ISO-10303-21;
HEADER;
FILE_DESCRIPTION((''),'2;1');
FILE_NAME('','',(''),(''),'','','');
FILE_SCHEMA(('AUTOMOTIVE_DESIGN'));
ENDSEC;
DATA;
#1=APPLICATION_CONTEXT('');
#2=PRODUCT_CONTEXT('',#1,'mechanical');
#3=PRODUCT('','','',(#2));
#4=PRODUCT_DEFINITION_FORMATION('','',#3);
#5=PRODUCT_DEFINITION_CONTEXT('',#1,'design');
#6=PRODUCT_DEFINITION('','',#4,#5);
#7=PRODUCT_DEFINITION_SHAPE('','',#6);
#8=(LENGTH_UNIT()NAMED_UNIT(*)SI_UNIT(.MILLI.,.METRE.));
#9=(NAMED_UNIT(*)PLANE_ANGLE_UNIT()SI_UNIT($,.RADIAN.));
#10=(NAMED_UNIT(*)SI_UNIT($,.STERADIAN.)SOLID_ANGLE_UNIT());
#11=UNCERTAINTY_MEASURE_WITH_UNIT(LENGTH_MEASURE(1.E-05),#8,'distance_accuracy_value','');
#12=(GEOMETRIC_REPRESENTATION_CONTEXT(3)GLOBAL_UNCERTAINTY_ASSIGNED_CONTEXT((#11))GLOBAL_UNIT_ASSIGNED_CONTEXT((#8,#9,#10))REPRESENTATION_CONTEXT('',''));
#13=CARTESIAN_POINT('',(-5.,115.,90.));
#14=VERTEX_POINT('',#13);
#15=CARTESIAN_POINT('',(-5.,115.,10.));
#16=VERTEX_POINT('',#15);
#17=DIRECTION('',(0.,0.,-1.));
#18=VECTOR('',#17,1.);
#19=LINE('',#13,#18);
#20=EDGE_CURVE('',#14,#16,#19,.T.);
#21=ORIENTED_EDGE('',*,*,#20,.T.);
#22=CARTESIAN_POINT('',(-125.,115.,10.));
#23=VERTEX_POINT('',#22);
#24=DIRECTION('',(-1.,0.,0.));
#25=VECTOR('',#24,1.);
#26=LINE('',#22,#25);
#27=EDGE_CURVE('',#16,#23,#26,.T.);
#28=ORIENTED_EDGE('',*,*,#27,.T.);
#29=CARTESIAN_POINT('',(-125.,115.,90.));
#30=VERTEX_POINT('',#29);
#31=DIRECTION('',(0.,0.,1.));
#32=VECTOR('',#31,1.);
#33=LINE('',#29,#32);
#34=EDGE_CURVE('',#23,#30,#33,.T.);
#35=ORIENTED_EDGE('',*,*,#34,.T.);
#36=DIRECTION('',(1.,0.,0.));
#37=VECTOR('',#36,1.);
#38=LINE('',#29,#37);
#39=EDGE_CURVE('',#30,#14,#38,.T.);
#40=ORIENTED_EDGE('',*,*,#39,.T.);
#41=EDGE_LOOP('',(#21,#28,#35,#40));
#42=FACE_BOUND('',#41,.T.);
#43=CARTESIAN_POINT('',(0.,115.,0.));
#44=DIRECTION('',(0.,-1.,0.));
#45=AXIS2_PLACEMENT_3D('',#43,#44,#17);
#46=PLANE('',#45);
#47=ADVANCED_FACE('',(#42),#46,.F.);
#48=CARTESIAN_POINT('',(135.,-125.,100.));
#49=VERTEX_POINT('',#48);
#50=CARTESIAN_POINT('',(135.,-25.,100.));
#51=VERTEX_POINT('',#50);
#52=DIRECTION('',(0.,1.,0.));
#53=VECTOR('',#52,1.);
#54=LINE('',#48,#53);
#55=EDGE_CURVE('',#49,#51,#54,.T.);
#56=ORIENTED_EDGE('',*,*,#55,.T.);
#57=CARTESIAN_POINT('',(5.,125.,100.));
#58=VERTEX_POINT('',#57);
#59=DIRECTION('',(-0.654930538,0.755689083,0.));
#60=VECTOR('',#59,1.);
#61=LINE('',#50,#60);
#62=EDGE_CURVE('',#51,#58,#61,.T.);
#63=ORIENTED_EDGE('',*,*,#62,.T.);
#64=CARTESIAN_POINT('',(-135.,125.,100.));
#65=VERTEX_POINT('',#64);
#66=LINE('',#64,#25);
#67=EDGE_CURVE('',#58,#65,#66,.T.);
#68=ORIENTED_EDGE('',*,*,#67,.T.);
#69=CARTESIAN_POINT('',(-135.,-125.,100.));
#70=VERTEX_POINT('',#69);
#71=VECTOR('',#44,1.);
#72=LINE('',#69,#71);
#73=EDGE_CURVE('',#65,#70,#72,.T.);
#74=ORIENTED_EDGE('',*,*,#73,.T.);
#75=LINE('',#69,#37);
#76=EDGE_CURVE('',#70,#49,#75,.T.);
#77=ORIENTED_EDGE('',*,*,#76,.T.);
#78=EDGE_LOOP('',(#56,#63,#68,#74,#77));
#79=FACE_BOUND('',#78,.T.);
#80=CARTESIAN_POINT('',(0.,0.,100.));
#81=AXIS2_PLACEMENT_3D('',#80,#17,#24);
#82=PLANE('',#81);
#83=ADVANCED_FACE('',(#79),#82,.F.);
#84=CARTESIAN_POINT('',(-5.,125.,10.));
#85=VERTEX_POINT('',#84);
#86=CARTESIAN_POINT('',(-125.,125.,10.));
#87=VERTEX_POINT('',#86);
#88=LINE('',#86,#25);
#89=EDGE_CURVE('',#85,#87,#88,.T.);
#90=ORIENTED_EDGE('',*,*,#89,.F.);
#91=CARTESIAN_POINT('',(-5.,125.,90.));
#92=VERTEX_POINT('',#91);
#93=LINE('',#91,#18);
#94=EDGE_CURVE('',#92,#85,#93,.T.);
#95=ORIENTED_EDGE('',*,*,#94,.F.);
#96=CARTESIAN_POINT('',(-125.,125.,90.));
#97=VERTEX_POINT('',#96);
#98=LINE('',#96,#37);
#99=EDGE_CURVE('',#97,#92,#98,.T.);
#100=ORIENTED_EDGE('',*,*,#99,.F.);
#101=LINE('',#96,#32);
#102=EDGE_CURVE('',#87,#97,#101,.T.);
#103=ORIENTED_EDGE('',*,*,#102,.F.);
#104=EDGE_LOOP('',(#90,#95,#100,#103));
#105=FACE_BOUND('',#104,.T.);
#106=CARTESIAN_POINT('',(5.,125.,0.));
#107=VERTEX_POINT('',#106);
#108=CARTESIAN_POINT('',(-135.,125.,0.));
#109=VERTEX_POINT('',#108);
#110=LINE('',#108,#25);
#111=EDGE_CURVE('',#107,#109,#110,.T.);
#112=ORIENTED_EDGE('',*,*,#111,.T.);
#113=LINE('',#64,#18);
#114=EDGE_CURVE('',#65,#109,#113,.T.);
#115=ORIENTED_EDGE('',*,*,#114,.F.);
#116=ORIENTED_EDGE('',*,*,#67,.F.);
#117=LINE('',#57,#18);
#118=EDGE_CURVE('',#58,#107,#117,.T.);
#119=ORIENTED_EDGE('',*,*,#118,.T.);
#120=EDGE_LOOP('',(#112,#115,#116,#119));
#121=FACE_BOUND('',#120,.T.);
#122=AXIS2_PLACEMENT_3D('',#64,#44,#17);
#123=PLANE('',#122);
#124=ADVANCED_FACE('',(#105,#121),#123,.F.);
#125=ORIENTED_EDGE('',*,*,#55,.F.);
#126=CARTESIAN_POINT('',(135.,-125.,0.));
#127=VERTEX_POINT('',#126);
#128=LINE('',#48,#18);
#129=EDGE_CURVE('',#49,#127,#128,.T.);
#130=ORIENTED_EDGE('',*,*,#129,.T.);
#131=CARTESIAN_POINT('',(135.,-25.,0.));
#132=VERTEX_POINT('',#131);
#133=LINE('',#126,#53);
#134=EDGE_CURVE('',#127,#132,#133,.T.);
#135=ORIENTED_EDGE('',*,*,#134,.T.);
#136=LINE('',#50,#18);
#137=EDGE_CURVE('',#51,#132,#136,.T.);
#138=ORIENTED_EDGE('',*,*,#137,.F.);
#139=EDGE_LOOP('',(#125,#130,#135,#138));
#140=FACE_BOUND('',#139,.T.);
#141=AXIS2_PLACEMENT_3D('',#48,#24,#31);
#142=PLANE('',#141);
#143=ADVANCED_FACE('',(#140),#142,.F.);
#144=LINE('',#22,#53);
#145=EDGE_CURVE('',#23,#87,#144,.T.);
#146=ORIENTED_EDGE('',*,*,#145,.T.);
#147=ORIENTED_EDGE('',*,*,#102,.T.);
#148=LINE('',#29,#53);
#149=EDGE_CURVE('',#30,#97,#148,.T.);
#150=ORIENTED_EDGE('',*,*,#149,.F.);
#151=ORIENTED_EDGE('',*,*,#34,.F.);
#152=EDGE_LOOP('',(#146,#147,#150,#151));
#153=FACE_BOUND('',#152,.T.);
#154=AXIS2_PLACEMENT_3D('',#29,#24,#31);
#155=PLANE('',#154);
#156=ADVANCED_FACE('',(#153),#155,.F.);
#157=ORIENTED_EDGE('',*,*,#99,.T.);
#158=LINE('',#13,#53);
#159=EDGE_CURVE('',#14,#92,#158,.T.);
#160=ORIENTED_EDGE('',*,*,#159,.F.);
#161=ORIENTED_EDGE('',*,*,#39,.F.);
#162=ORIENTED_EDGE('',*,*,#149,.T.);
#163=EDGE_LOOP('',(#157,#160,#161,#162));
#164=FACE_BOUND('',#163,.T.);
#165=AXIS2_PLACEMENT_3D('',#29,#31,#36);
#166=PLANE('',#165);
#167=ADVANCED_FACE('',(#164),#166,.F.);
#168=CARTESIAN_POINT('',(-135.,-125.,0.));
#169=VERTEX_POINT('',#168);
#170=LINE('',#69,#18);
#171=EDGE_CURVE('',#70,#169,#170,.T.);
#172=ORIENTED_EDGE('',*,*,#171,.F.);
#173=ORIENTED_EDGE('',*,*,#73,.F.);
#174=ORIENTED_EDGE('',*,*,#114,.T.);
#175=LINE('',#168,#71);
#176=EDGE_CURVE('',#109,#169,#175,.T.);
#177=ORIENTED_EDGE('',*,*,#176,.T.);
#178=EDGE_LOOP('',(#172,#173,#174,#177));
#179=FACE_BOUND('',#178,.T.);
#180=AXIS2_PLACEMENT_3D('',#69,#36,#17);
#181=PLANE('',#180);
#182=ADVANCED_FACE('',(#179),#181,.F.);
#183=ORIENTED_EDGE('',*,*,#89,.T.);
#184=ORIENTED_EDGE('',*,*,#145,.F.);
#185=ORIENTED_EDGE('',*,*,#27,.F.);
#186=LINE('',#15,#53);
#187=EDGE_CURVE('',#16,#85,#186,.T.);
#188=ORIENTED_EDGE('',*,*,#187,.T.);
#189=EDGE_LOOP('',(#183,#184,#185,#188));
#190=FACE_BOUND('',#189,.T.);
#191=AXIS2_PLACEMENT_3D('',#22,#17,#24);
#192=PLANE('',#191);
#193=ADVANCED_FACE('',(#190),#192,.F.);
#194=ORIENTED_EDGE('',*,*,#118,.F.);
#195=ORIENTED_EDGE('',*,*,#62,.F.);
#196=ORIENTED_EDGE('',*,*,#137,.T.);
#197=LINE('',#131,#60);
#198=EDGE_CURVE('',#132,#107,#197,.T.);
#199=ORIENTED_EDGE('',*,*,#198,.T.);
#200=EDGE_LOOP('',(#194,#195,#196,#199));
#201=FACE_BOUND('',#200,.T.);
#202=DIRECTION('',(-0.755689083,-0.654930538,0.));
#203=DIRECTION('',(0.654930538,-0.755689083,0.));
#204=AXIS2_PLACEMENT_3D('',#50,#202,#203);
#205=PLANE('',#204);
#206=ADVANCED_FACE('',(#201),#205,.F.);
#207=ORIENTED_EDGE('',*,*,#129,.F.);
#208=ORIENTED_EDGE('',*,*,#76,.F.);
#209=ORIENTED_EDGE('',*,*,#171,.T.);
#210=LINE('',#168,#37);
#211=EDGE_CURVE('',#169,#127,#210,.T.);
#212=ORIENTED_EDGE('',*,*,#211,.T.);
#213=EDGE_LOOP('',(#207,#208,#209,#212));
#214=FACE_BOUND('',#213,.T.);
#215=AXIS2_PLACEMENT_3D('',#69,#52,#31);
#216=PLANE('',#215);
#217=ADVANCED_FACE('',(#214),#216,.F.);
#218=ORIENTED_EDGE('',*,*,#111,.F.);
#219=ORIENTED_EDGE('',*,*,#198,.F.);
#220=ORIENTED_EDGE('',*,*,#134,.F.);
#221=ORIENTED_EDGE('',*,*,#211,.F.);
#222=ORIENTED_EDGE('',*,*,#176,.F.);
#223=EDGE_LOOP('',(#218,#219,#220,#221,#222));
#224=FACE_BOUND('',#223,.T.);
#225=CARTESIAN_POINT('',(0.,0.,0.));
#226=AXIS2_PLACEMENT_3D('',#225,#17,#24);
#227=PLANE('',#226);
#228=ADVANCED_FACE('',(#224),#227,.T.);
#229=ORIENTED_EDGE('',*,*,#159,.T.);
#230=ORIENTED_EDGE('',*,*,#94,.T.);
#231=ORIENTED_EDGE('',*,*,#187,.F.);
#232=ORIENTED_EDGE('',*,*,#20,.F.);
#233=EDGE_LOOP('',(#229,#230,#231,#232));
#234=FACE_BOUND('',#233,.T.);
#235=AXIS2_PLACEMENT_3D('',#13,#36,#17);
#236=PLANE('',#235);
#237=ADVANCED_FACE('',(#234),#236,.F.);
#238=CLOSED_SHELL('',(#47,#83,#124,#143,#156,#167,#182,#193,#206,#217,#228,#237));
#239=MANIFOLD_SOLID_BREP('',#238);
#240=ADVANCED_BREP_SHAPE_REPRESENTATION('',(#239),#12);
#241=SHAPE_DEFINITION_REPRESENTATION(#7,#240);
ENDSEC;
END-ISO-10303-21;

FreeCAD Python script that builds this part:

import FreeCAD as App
import Part
import Sketcher
Q = App.Units.Quantity


def add_polygon(sketch, points):
    """Adds a closed chain of lines whose ends are joined by coincident constraints."""
    first, n = sketch.GeometryCount, len(points)
    for a, b in zip(points, points[1:] + points[:1]):
        sketch.addGeometry(Part.LineSegment(App.Vector(*a, 0), App.Vector(*b, 0)), False)
    for i in range(n):
        sketch.addConstraint(Sketcher.Constraint("Coincident", first + i, 2, first + (i + 1) % n, 1))

doc = App.newDocument("Part")
body = doc.addObject("PartDesign::Body", "Body")

# Sketch on XY plane
sketch1 = body.newObject("Sketcher::SketchObject", "Sketch")
sketch1.AttachmentSupport = (doc.getObject("XY_Plane"), [""])
sketch1.MapMode = "FlatFace"
add_polygon(sketch1, [(135, -25), (5, 125), (-135, 125), (-135, -125), (135, -125)])  # lines 0-4
sketch1.addConstraint([
    Sketcher.Constraint("Horizontal", 1),
    Sketcher.Constraint("Vertical", 2),
    Sketcher.Constraint("Horizontal", 3),
    Sketcher.Constraint("Vertical", 4),
    Sketcher.Constraint("Symmetric", 1, 2, 3, 2, -1, 1),
    Sketcher.Constraint("DistanceX", 1, 2, 1, 1, Q("140 mm")),
    Sketcher.Constraint("DistanceX", 3, 1, 3, 2, Q("270 mm")),
    Sketcher.Constraint("DistanceY", 2, 2, 2, 1, Q("250 mm")),
    Sketcher.Constraint("DistanceY", 4, 1, 4, 2, Q("100 mm")),
])
pad1 = body.newObject("PartDesign::Pad", "Pad")
pad1.Profile = sketch1
pad1.Length = 100

# Sketch on XZ plane
sketch2 = body.newObject("Sketcher::SketchObject", "Sketch001")
sketch2.AttachmentSupport = (doc.getObject("XZ_Plane"), [""])
sketch2.MapMode = "FlatFace"
sketch2.AttachmentOffset = App.Placement(App.Vector(0, 0, -125), App.Rotation())
add_polygon(sketch2, [(-125, 10), (-125, 90), (-5, 90), (-5, 10)])  # lines 0-3
sketch2.addConstraint([
    Sketcher.Constraint("Vertical", 0),
    Sketcher.Constraint("Horizontal", 1),
    Sketcher.Constraint("Vertical", 2),
    Sketcher.Constraint("Horizontal", 3),
    Sketcher.Constraint("DistanceX", 1, 1, 1, 2, Q("120 mm")),
    Sketcher.Constraint("DistanceY", 0, 1, 0, 2, Q("80 mm")),
    Sketcher.Constraint("DistanceX", 0, 2, -1, 1, Q("125 mm")),
    Sketcher.Constraint("DistanceY", -1, 1, 0, 2, Q("90 mm")),
])
pocket1 = body.newObject("PartDesign::Pocket", "Pocket")
pocket1.Profile = sketch2
pocket1.Length = 10
pocket1.Reversed = True

doc.recompute()
